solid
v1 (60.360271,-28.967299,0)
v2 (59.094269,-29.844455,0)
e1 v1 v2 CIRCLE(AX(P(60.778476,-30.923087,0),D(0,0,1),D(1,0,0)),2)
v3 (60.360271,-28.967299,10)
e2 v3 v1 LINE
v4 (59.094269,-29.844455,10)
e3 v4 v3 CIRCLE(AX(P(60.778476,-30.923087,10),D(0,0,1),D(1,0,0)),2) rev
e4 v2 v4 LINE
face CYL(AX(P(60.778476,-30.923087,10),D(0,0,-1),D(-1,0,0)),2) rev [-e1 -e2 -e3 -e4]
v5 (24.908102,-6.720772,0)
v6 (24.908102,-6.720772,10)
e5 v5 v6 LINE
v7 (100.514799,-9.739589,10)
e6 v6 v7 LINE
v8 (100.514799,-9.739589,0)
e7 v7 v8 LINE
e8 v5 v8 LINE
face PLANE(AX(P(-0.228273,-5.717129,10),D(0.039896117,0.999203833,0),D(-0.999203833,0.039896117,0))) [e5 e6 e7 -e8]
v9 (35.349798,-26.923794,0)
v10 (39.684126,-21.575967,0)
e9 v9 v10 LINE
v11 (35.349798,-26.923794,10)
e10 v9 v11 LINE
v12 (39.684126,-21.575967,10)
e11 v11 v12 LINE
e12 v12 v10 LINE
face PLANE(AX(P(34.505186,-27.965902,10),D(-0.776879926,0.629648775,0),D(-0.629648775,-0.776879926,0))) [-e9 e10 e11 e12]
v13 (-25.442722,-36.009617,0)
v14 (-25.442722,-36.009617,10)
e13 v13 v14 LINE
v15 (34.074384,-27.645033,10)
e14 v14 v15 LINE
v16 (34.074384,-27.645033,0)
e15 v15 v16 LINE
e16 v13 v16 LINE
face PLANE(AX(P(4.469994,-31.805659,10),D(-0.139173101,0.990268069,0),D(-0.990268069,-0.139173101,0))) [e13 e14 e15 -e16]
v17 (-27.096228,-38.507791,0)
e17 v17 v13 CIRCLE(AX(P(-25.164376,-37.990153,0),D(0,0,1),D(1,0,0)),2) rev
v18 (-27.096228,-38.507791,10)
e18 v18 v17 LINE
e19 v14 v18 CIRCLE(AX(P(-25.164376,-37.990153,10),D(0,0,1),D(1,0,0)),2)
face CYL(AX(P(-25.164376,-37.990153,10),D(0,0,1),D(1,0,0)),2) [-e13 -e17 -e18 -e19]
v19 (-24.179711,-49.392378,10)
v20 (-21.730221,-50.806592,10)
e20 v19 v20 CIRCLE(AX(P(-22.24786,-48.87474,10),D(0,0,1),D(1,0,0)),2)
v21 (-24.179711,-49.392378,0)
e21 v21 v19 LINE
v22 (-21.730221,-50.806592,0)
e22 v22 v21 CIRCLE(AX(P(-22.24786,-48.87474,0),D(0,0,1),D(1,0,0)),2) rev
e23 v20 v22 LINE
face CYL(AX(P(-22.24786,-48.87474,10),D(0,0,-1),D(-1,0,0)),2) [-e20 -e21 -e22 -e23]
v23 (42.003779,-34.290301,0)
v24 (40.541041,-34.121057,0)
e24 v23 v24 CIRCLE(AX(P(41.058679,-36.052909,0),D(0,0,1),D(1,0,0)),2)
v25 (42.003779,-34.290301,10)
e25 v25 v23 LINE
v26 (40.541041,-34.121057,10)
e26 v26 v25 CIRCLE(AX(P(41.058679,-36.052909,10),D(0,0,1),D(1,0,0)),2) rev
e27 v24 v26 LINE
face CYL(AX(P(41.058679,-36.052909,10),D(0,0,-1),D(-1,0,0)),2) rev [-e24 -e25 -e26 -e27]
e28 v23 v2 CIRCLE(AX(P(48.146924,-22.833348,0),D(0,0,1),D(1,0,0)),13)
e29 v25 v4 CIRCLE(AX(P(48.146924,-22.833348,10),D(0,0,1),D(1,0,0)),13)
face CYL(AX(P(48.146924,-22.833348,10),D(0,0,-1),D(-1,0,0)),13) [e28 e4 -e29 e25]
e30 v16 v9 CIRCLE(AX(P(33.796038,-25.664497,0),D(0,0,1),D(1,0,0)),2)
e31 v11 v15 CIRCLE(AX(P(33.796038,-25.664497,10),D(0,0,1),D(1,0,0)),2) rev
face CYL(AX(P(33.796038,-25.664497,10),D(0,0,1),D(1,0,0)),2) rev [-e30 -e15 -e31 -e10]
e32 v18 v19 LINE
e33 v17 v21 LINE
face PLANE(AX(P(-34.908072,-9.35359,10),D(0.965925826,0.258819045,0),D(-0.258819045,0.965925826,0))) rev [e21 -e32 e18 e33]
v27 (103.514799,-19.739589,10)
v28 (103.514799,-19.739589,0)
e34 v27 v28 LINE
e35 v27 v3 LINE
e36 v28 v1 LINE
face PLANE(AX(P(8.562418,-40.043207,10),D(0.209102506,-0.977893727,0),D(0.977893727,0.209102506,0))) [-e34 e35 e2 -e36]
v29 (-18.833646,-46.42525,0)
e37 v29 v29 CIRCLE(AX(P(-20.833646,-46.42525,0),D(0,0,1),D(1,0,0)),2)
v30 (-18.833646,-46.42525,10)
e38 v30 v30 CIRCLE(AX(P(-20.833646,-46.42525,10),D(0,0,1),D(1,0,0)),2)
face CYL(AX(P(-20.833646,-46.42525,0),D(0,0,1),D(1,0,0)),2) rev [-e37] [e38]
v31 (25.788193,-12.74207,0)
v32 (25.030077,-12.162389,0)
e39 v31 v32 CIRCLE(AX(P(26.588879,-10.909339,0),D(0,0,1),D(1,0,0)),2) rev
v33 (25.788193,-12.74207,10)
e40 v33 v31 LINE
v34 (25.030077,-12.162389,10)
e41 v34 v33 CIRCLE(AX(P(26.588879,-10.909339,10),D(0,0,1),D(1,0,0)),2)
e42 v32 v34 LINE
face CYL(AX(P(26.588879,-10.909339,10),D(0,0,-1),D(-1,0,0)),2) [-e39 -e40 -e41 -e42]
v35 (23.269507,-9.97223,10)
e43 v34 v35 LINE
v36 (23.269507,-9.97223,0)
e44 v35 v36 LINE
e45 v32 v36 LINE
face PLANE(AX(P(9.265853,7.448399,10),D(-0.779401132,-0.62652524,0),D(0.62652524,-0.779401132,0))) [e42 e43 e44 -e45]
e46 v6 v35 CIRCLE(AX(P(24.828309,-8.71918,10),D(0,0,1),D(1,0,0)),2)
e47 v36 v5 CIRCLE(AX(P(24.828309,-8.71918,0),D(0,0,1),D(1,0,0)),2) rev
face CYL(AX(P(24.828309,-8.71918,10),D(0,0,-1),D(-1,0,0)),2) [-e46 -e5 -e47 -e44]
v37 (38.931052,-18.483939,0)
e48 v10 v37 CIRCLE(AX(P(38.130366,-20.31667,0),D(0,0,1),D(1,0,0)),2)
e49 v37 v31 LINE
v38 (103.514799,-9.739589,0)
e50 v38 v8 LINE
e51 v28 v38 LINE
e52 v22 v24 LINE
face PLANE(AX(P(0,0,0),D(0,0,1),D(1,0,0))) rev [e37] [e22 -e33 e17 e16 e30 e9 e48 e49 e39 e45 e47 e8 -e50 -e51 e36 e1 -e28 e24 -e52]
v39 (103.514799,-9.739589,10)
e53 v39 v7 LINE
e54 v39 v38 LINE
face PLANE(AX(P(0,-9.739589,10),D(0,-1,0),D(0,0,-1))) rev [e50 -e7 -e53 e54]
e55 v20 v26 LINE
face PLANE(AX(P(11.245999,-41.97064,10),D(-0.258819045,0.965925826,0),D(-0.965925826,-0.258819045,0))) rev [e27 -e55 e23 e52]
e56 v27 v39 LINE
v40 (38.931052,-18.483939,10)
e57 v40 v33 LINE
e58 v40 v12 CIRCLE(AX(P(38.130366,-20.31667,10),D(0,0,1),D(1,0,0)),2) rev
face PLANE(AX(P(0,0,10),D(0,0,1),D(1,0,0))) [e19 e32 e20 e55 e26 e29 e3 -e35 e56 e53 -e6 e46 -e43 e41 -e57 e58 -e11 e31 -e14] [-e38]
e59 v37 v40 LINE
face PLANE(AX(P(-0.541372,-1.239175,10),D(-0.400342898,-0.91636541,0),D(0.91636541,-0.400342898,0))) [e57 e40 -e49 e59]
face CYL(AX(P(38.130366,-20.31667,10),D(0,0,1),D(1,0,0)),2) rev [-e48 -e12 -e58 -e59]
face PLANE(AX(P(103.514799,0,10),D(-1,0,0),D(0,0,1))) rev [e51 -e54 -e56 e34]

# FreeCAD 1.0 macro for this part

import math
import FreeCAD as App
import Part
import Sketcher
Q = App.Units.Quantity


def edges_at(feature, points):
    """Names of the edges that pass closest to the given points."""
    edges = feature.Shape.Edges
    near = lambda p: min(range(len(edges)), key=lambda i: edges[i].distToShape(Part.Vertex(*p))[0])
    return sorted({f"Edge{near(p) + 1}" for p in points})

doc = App.newDocument("Part")
body = doc.addObject("PartDesign::Body", "Body")

sketch1 = body.newObject("Sketcher::SketchObject", "Sketch")
sketch1.AttachmentSupport = (doc.getObject("XY_Plane"), [""])
sketch1.MapMode = "FlatFace"
sketch1.addGeometry([
    Part.LineSegment(App.Vector(-27.7, -36.3, 0), App.Vector(-23.7, -51.3, 0)),
    Part.LineSegment(App.Vector(-23.7, -51.3, 0), App.Vector(41.3, -33.9, 0)),
    Part.ArcOfCircle(Part.Circle(App.Vector(48.1, -22.8, 0), App.Vector(0, 0, 1), 13), math.radians(-122), math.radians(-29)),
    Part.LineSegment(App.Vector(59.5, -29.1, 0), App.Vector(103.5, -19.7, 0)),
    Part.LineSegment(App.Vector(103.5, -19.7, 0), App.Vector(103.5, -9.7, 0)),
    Part.LineSegment(App.Vector(103.5, -9.7, 0), App.Vector(100.5, -9.7, 0)),
    Part.LineSegment(App.Vector(100.5, -9.7, 0), App.Vector(20.5, -6.5, 0)),
    Part.LineSegment(App.Vector(20.5, -6.5, 0), App.Vector(25.3, -12.5, 0)),
    Part.LineSegment(App.Vector(25.3, -12.5, 0), App.Vector(41.3, -19.5, 0)),
    Part.LineSegment(App.Vector(41.3, -19.5, 0), App.Vector(34.9, -27.5, 0)),
    Part.LineSegment(App.Vector(34.9, -27.5, 0), App.Vector(-27.7, -36.3, 0)),
], False)
sketch1.addConstraint([
    Sketcher.Constraint("Coincident", 0, 2, 1, 1),
    Sketcher.Constraint("Coincident", 1, 2, 2, 1),
    Sketcher.Constraint("Coincident", 2, 2, 3, 1),
    Sketcher.Constraint("Coincident", 3, 2, 4, 1),
    Sketcher.Constraint("Coincident", 4, 2, 5, 1),
    Sketcher.Constraint("Coincident", 5, 2, 6, 1),
    Sketcher.Constraint("Coincident", 6, 2, 7, 1),
    Sketcher.Constraint("Coincident", 7, 2, 8, 1),
    Sketcher.Constraint("Coincident", 8, 2, 9, 1),
    Sketcher.Constraint("Coincident", 9, 2, 10, 1),
    Sketcher.Constraint("Coincident", 10, 2, 0, 1),
    Sketcher.Constraint("Vertical", 4),
    Sketcher.Constraint("Horizontal", 5),
    Sketcher.Constraint("Perpendicular", 0, 1),
    Sketcher.Constraint("Vertical", 1, 2, 8, 2),
    Sketcher.Constraint("Radius", 2, 13.0),
    Sketcher.Constraint("DistanceX", 5, 2, 5, 1, 3.0),
    Sketcher.Constraint("DistanceY", 4, 1, 4, 2, 10.0),
    Sketcher.Constraint("Angle", 0, Q("-75 deg")),
    Sketcher.Constraint("Angle", 10, Q("-172 deg")),
    Sketcher.Constraint("Distance", 3, 45.0),
    Sketcher.Constraint("DistanceX", 0, 2, 1, 2, 65.0),
    Sketcher.Constraint("DistanceX", 6, 2, 5, 2, 80.0),
    Sketcher.Constraint("DistanceY", 7, 2, 6, 2, 6.0),
    Sketcher.Constraint("DistanceX", 7, 2, 1, 2, 16.0),
    Sketcher.Constraint("DistanceY", 9, 2, 8, 2, 8.0),
    Sketcher.Constraint("DistanceY", 0, 2, 10, 2, 15.0),
    Sketcher.Constraint("Distance", 9, 10.297602),
    Sketcher.Constraint("DistanceX", -1, 1, 3, 2, 103.514799),
    Sketcher.Constraint("DistanceY", 8, 2, 7, 2, 6.990101),
    Sketcher.Constraint("Distance", 7, 7.698218),
    Sketcher.Constraint("DistanceY", 0, 2, -1, 1, 51.32423),
    Sketcher.Constraint("DistanceX", -1, 1, 2, 2, 59.509581),
    Sketcher.Constraint("DistanceY", 3, 2, -1, 1, 19.739589),
])
pad1 = body.newObject("PartDesign::Pad", "Pad")
pad1.Profile = sketch1
pad1.Length = 10

sketch2 = body.newObject("Sketcher::SketchObject", "Sketch001")
sketch2.AttachmentSupport = (doc.getObject("XY_Plane"), [""])
sketch2.MapMode = "FlatFace"
sketch2.AttachmentOffset = App.Placement(App.Vector(0, 0, 10), App.Rotation())
sketch2.addGeometry(Part.Circle(App.Vector(-20.8, -46.4, 0), App.Vector(0, 0, 1), 2), False)
sketch2.addConstraint([
    Sketcher.Constraint("Diameter", 0, 4.0),
    Sketcher.Constraint("DistanceY", 0, 3, -1, 1, 46.42525),
    Sketcher.Constraint("DistanceX", 0, 3, -1, 1, 20.833646),
])
pocket1 = body.newObject("PartDesign::Pocket", "Pocket")
pocket1.Profile = sketch2
pocket1.Type = "ThroughAll"
doc.recompute()

fillet = body.newObject("PartDesign::Fillet", "Fillet")
fillet.Base = (pocket1, edges_at(pocket1, [
    (59.51, -29.149, 5),
    (41.338, -33.908, 5),
    (-23.662, -51.324, 5),
    (-27.681, -36.324, 5),
    (34.854, -27.535, 5),
    (41.338, -19.535, 5),
    (25.338, -12.545, 5),
    (20.515, -6.545, 5),
]))
fillet.Radius = 2

doc.recompute()
